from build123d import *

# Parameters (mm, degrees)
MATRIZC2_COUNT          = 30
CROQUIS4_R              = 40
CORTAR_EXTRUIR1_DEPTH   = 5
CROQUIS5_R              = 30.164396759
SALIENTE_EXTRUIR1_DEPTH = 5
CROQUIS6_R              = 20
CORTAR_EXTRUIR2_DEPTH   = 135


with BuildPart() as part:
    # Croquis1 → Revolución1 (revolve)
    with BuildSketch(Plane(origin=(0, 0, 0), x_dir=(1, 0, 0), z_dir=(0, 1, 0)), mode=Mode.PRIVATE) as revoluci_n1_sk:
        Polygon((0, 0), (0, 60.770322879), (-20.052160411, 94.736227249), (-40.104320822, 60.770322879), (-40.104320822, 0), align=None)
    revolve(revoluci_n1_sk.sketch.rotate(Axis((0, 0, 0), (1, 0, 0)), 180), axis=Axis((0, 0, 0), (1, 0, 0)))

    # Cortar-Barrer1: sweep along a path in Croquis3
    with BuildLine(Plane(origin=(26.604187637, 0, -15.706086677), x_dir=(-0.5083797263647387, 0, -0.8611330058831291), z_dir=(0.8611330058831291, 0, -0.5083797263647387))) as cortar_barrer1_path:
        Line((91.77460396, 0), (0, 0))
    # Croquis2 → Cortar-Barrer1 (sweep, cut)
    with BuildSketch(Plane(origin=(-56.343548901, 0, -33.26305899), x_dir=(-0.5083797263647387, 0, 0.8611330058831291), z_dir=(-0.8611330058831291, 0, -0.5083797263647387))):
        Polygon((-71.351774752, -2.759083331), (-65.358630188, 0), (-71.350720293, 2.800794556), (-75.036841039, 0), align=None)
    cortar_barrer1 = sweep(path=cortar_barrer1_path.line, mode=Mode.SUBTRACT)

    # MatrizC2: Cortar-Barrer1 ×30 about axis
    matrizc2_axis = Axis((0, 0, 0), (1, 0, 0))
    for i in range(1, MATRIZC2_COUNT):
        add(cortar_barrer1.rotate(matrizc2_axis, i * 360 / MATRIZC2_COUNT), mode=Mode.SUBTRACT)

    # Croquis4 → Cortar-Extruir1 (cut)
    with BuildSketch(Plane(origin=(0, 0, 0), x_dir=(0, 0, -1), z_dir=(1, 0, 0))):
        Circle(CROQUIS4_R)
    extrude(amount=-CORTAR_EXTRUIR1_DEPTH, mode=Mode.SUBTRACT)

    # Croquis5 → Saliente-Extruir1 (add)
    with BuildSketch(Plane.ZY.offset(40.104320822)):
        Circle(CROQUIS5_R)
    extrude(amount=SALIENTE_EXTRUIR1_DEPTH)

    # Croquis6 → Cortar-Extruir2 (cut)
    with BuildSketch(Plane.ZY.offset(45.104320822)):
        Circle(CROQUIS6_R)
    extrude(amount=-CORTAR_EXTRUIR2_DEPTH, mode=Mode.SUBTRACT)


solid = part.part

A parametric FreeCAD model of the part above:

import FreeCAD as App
import Part
import Sketcher

V = App.Vector


def add_polygon(sketch, points):
    """Adds a closed chain of lines whose ends are joined by coincident constraints."""
    first, n = sketch.GeometryCount, len(points)
    for a, b in zip(points, points[1:] + points[:1]):
        sketch.addGeometry(Part.LineSegment(App.Vector(*a, 0), App.Vector(*b, 0)), False)
    for i in range(n):
        sketch.addConstraint(Sketcher.Constraint("Coincident", first + i, 2, first + (i + 1) % n, 1))

doc = App.newDocument("Part")
params = doc.addObject("Spreadsheet::Sheet", "Params")
for row, (alias, value) in enumerate([
    ("revolution_angle", "360 deg"),
    ("sketch4_diameter", "80 mm"),
    ("pocket1_length", "5 mm"),
    ("pad1_length", "5 mm"),
    ("sketch6_diameter", "40 mm"),
    ("pocket2_length", "135 mm"),
], start=1):
    params.set(f"A{row}", alias)
    params.set(f"B{row}", "=" + value)
    params.setAlias(f"B{row}", alias)

body = doc.addObject("PartDesign::Body", "Body")

sketch1 = body.newObject("Sketcher::SketchObject", "Sketch")
sketch1.AttachmentSupport = (doc.getObject("XZ_Plane"), [""])
sketch1.MapMode = "FlatFace"
add_polygon(sketch1, [(0, 0), (0, -61), (-20, -95), (-40, -61), (-40, 0)])
sketch1.addConstraint(Sketcher.Constraint("Vertical", 0))
sketch1.addConstraint(Sketcher.Constraint("Vertical", 3))
sketch1.addConstraint(Sketcher.Constraint("Horizontal", 4))
sketch1.addConstraint(Sketcher.Constraint("Coincident", 4, 2, -1, 1))
sketch1.addConstraint(Sketcher.Constraint("Horizontal", 0, 2, 2, 2))
sketch1.addConstraint(Sketcher.Constraint("Equal", 1, 2))
sketch1.addConstraint(Sketcher.Constraint("DistanceX", 4, 1, 4, 2, 40.104321))
sketch1.addConstraint(Sketcher.Constraint("DistanceY", 0, 2, 0, 1, 60.770323))
sketch1.addConstraint(Sketcher.Constraint("Distance", 1, 39.443273))
revolution = body.newObject("PartDesign::Revolution", "Revolution")
revolution.Profile = sketch1
revolution.ReferenceAxis = (sketch1, ["H_Axis"])
revolution.setExpression("Angle", "Params.revolution_angle")

sketch2 = body.newObject("Sketcher::SketchObject", "Sketch001")
sketch2.Placement = App.Placement(V(-56.343549, 0, -33.263059), App.Rotation(V(-0.508379726, 0, 0.861133006), V(0, 1, 0), V(-0.861133006, 0, -0.508379726), "ZXY"))
add_polygon(sketch2, [(-71.4, -2.8), (-65.4, 0), (-71.4, 2.8), (-75, 0)])
sketch2.addConstraint(Sketcher.Constraint("PointOnObject", 0, 2, -1))
sketch2.addConstraint(Sketcher.Constraint("PointOnObject", 2, 2, -1))
sketch2.addConstraint(Sketcher.Constraint("Distance", 0, 6.597751))
sketch2.addConstraint(Sketcher.Constraint("DistanceX", 0, 2, -1, 1, 65.35863))
sketch2.addConstraint(Sketcher.Constraint("DistanceX", 1, 2, -1, 1, 71.35072))
sketch2.addConstraint(Sketcher.Constraint("DistanceX", 2, 2, -1, 1, 75.036841))
sketch2.addConstraint(Sketcher.Constraint("Distance", 1, 6.614348))
sketch2.addConstraint(Sketcher.Constraint("Distance", 3, 4.603505))

sketch3 = body.newObject("Sketcher::SketchObject", "Sketch002")
sketch3.Placement = App.Placement(V(26.604188, 0, -15.706087), App.Rotation(V(0.508379726, 0, 0.861133006), V(0, 1, 0), V(-0.861133006, 0, 0.508379726), "ZXY"))
sketch3.addGeometry(Part.LineSegment(V(-92, 0, 0), V(0, 0, 0)), False)
sketch3.addConstraint(Sketcher.Constraint("Horizontal", 0))
sketch3.addConstraint(Sketcher.Constraint("Coincident", 0, 2, -1, 1))
sketch3.addConstraint(Sketcher.Constraint("DistanceX", 0, 1, 0, 2, 91.774604))
doc.recompute()

subtractivepipe = body.newObject("PartDesign::SubtractivePipe", "SubtractivePipe")
subtractivepipe.Profile = sketch2
subtractivepipe.Spine = (sketch3, ["Edge1"])
doc.recompute()

polarpattern = body.newObject("PartDesign::PolarPattern", "PolarPattern")
polarpattern.Originals = [subtractivepipe]
polarpattern.Axis = (doc.getObject("X_Axis"), [""])
polarpattern.Angle = 360
polarpattern.Occurrences = 30
body.Tip = polarpattern

sketch4 = body.newObject("Sketcher::SketchObject", "Sketch003")
sketch4.AttachmentSupport = (doc.getObject("YZ_Plane"), [""])
sketch4.MapMode = "FlatFace"
sketch4.addGeometry(Part.Circle(V(0, 0, 0), V(0, 0, 1), 40), False)
sketch4.addConstraint(Sketcher.Constraint("Coincident", 0, 3, -1, 1))
sketch4.addConstraint(Sketcher.Constraint("Diameter", 0, 80.0))
sketch4.setExpression("Constraints[1]", "Params.sketch4_diameter")
pocket1 = body.newObject("PartDesign::Pocket", "Pocket")
pocket1.Profile = sketch4
pocket1.setExpression("Length", "Params.pocket1_length")

sketch5 = body.newObject("Sketcher::SketchObject", "Sketch004")
sketch5.AttachmentSupport = (doc.getObject("YZ_Plane"), [""])
sketch5.MapMode = "FlatFace"
sketch5.AttachmentOffset = App.Placement(V(0, 0, -40.104321), App.Rotation())
sketch5.addGeometry(Part.Circle(V(0, 0, 0), V(0, 0, 1), 30), False)
sketch5.addConstraint(Sketcher.Constraint("Coincident", 0, 3, -1, 1))
sketch5.addConstraint(Sketcher.Constraint("Diameter", 0, 60.328794))
pad1 = body.newObject("PartDesign::Pad", "Pad")
pad1.Profile = sketch5
pad1.setExpression("Length", "Params.pad1_length")
pad1.Reversed = True

sketch6 = body.newObject("Sketcher::SketchObject", "Sketch005")
sketch6.AttachmentSupport = (doc.getObject("YZ_Plane"), [""])
sketch6.MapMode = "FlatFace"
sketch6.AttachmentOffset = App.Placement(V(0, 0, -45.104321), App.Rotation())
sketch6.addGeometry(Part.Circle(V(0, 0, 0), V(0, 0, 1), 20), False)
sketch6.addConstraint(Sketcher.Constraint("Coincident", 0, 3, -1, 1))
sketch6.addConstraint(Sketcher.Constraint("Diameter", 0, 40.0))
sketch6.setExpression("Constraints[1]", "Params.sketch6_diameter")
pocket2 = body.newObject("PartDesign::Pocket", "Pocket001")
pocket2.Profile = sketch6
pocket2.setExpression("Length", "Params.pocket2_length")
pocket2.Reversed = True

doc.recompute()
